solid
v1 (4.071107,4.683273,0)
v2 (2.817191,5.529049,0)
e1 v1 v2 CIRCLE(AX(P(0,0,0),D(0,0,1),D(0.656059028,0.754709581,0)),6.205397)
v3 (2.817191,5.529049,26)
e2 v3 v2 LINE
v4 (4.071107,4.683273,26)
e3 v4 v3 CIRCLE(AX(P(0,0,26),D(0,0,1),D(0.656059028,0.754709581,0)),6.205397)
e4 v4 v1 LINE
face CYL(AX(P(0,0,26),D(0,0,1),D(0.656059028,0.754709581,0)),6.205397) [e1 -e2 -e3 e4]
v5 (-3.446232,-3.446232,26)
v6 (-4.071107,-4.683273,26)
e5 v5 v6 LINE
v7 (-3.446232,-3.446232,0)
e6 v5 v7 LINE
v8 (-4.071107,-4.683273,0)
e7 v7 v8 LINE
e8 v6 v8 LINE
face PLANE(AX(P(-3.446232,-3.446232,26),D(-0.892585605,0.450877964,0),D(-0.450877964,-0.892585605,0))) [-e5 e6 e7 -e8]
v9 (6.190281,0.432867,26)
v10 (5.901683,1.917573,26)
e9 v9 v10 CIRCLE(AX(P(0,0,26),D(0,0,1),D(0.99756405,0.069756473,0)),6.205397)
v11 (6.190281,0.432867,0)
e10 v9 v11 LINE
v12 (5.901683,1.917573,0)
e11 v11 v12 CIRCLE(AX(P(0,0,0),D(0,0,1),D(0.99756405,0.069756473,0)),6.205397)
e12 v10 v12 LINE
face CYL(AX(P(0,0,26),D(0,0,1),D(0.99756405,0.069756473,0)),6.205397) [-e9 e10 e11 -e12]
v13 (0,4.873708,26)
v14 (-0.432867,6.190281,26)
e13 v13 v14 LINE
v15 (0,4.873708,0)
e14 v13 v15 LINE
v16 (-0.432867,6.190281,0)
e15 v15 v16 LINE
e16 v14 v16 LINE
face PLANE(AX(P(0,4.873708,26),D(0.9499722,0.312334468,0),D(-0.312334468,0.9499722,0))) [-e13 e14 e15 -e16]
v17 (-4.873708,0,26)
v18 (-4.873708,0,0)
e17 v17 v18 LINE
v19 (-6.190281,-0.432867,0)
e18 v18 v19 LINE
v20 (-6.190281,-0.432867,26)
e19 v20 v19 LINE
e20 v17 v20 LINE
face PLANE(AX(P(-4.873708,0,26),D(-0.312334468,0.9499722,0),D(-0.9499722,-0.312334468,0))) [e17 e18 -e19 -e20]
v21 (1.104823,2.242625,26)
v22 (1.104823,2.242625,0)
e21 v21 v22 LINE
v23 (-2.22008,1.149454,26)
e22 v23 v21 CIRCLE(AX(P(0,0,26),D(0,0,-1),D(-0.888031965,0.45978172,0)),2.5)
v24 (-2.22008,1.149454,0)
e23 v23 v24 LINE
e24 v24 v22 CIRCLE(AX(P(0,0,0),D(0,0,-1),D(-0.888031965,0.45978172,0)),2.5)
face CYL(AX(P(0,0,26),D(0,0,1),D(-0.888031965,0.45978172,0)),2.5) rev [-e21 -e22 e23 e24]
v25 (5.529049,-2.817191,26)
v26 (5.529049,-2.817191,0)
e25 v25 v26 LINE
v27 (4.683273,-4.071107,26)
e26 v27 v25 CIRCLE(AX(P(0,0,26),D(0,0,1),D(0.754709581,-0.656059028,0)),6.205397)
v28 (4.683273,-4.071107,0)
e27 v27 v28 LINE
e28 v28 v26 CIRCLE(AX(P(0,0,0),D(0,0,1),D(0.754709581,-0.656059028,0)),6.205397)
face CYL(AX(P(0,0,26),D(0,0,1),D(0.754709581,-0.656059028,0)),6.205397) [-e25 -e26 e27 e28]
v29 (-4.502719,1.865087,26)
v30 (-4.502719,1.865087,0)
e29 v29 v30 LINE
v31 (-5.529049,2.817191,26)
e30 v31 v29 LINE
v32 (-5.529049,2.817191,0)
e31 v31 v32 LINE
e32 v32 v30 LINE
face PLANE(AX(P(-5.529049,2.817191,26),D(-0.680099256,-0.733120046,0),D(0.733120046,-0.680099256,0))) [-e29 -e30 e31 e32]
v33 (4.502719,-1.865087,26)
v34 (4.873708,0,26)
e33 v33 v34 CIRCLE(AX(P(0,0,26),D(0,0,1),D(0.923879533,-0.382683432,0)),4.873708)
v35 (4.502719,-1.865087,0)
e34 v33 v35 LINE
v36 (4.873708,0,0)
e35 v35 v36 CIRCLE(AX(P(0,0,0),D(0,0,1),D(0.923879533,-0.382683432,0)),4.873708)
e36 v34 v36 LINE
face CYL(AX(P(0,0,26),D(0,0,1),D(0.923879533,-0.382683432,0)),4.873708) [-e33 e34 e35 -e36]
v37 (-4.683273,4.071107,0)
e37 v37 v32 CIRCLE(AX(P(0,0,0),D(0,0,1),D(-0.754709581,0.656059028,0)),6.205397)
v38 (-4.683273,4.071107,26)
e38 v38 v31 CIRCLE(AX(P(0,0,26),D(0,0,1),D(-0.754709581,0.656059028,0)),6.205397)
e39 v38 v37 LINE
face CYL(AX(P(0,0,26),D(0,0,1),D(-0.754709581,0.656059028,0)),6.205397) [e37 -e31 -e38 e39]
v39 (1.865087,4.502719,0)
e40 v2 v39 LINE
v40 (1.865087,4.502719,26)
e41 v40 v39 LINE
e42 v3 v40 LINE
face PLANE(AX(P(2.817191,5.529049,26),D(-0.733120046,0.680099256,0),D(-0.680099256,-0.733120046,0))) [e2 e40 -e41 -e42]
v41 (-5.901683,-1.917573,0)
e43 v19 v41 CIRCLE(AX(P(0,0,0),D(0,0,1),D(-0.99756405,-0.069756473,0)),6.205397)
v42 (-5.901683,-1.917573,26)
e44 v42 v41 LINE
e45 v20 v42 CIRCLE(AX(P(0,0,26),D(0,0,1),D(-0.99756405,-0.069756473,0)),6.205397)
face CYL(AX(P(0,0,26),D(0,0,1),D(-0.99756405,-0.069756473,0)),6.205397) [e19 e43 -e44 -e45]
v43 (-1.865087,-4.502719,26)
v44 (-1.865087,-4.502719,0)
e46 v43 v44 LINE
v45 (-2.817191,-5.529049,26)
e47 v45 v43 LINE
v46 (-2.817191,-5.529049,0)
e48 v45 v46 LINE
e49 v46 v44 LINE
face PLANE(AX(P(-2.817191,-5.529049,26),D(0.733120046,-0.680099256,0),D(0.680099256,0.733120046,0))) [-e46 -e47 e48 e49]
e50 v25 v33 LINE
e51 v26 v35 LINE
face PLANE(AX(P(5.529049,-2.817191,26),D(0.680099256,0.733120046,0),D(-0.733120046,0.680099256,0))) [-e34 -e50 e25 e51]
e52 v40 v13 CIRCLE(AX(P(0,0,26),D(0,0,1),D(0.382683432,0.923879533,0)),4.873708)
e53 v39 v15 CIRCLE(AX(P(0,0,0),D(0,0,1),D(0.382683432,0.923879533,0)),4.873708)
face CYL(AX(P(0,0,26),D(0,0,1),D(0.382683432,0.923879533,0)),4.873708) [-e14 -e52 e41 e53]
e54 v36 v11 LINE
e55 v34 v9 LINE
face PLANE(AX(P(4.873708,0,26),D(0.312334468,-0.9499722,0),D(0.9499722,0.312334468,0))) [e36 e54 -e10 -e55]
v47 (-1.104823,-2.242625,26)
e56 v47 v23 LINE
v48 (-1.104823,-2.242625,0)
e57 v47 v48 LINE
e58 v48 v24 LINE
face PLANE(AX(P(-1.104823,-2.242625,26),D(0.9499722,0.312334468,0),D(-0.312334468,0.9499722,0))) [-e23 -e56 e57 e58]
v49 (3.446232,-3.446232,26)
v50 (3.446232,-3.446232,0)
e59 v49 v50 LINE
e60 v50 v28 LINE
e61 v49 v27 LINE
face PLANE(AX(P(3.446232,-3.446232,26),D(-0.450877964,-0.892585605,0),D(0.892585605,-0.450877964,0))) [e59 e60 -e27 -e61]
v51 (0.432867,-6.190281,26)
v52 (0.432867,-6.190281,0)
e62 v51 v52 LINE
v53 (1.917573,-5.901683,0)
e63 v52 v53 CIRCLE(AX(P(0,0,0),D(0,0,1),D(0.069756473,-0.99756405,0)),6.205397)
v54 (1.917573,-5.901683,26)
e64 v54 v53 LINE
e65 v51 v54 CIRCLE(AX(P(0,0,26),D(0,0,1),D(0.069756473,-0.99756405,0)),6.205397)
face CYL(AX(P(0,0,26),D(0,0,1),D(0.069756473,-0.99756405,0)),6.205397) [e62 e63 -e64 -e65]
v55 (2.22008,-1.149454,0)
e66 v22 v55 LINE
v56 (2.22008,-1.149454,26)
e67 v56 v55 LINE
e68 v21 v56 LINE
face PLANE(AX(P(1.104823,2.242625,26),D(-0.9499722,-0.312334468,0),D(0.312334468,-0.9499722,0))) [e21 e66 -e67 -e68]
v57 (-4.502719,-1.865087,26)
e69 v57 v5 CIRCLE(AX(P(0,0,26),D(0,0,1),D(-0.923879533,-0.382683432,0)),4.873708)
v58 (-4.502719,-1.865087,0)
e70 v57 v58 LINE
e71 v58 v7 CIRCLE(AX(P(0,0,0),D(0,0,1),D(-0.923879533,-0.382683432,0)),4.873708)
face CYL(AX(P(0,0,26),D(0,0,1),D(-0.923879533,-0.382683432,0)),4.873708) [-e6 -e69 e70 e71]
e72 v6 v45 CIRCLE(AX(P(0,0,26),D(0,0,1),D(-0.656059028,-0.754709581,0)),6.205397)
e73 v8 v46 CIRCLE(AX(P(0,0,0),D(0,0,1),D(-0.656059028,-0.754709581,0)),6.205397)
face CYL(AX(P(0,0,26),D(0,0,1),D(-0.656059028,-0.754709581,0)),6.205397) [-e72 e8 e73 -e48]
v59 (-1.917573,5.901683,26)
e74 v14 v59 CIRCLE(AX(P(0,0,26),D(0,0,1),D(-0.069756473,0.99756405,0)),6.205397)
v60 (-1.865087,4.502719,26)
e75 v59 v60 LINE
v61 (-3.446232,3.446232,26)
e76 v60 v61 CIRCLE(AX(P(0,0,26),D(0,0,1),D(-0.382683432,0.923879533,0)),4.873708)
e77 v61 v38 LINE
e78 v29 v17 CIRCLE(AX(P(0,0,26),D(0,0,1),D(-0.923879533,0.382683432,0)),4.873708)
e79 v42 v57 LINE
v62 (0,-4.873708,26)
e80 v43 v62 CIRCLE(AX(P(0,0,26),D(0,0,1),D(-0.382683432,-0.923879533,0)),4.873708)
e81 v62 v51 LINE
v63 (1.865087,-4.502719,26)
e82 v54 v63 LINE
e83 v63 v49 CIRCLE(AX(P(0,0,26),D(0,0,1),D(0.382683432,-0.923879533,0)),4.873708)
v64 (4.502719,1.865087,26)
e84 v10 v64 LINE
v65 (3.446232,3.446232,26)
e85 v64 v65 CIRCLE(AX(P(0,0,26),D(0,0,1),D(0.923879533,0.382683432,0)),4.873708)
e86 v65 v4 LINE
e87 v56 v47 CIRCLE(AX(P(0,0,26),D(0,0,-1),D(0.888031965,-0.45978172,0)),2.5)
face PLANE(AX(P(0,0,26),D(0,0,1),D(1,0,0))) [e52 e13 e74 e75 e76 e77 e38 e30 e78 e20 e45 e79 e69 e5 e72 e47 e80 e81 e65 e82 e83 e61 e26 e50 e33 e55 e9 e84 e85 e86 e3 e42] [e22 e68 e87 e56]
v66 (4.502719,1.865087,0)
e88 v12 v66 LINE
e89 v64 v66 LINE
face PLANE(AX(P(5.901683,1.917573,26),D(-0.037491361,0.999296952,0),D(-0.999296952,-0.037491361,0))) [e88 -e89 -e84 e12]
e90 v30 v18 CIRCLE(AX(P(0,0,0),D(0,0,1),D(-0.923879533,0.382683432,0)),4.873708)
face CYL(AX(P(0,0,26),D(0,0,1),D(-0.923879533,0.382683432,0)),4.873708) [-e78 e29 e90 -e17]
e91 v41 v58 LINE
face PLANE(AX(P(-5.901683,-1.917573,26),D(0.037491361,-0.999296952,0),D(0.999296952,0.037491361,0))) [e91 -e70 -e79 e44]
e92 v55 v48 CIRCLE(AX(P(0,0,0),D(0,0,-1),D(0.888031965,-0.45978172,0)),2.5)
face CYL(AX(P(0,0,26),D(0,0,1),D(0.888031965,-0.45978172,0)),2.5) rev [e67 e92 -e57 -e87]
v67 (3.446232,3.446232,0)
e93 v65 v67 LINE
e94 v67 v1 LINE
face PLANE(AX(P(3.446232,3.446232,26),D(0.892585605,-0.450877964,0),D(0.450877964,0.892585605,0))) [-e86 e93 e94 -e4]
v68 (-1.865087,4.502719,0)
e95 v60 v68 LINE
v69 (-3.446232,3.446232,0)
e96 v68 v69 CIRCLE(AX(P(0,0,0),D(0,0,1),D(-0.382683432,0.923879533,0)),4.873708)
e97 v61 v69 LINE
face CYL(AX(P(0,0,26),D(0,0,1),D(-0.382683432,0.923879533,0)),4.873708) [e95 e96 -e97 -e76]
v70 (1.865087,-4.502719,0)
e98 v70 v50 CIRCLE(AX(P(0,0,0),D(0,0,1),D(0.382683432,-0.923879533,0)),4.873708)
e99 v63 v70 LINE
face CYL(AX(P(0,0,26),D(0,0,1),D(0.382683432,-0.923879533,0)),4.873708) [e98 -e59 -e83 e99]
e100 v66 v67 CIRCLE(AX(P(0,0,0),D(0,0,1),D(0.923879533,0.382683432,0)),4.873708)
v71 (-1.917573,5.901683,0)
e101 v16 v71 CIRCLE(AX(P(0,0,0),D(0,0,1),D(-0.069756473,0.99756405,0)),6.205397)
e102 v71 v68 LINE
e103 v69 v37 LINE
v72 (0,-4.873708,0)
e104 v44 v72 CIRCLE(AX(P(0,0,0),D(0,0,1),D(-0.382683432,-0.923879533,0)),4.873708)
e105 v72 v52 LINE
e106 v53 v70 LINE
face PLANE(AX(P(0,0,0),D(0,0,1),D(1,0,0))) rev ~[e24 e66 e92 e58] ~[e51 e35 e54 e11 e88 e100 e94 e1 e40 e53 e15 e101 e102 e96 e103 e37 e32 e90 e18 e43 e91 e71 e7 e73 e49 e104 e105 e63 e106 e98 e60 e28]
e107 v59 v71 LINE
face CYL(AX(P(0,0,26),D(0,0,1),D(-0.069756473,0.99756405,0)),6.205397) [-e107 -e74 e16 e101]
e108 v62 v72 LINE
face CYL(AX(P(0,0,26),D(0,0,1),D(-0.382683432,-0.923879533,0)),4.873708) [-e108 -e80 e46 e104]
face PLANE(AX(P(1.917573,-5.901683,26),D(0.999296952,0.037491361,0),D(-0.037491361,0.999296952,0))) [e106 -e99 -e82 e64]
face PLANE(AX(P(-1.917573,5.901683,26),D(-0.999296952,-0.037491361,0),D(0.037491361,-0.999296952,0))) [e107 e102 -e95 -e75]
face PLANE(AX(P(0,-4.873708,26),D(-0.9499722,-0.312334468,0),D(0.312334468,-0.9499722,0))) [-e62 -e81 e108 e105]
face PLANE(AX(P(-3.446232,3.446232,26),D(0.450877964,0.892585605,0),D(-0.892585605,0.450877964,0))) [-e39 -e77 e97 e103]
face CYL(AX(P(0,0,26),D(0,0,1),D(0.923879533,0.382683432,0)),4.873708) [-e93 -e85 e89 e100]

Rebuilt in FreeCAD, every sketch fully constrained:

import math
import FreeCAD as App
import Part
import Sketcher

V = App.Vector

doc = App.newDocument("Part")
params = doc.addObject("Spreadsheet::Sheet", "Params")
for row, (alias, value) in enumerate([
    ("sketch1_radius", "2.5 mm"),
    ("pad1_length", "26 mm"),
], start=1):
    params.set(f"A{row}", alias)
    params.set(f"B{row}", "=" + value)
    params.setAlias(f"B{row}", alias)

body = doc.addObject("PartDesign::Body", "Body")

sketch1 = body.newObject("Sketcher::SketchObject", "Sketch")
sketch1.AttachmentSupport = (doc.getObject("XY_Plane"), [""])
sketch1.MapMode = "FlatFace"
sketch1.AttachmentOffset = App.Placement(V(0, 0, 26), App.Rotation())
sketch1.addGeometry([
    Part.LineSegment(V(4.9, 0, 0), V(6.2, 0.4, 0)),
    Part.ArcOfCircle(Part.Circle(V(0, 0, 0), V(0, 0, 1), 6.2), math.radians(4), math.radians(18)),
    Part.LineSegment(V(5.9, 1.9, 0), V(4.5, 1.9, 0)),
    Part.ArcOfCircle(Part.Circle(V(0, 0, 0), V(0, 0, 1), 4.9), math.radians(22), math.radians(45)),
    Part.LineSegment(V(3.4, 3.4, 0), V(4.1, 4.7, 0)),
    Part.ArcOfCircle(Part.Circle(V(0, 0, 0), V(0, 0, 1), 6.2), math.radians(49), math.radians(63)),
    Part.LineSegment(V(2.8, 5.5, 0), V(1.9, 4.5, 0)),
    Part.ArcOfCircle(Part.Circle(V(0, 0, 0), V(0, 0, 1), 4.9), math.radians(68), math.radians(90)),
    Part.LineSegment(V(0, 4.9, 0), V(-0.4, 6.2, 0)),
    Part.ArcOfCircle(Part.Circle(V(0, 0, 0), V(0, 0, 1), 6.2), math.radians(94), math.radians(108)),
    Part.LineSegment(V(-1.9, 5.9, 0), V(-1.9, 4.5, 0)),
    Part.ArcOfCircle(Part.Circle(V(0, 0, 0), V(0, 0, 1), 4.9), math.radians(112), math.radians(135)),
    Part.LineSegment(V(-3.4, 3.4, 0), V(-4.7, 4.1, 0)),
    Part.ArcOfCircle(Part.Circle(V(0, 0, 0), V(0, 0, 1), 6.2), math.radians(139), math.radians(153)),
    Part.LineSegment(V(-5.5, 2.8, 0), V(-4.5, 1.9, 0)),
    Part.ArcOfCircle(Part.Circle(V(0, 0, 0), V(0, 0, 1), 4.9), math.radians(158), math.radians(180)),
    Part.LineSegment(V(-4.9, 0, 0), V(-6.2, -0.4, 0)),
    Part.ArcOfCircle(Part.Circle(V(0, 0, 0), V(0, 0, 1), 6.2), math.radians(-176), math.radians(-162)),
    Part.LineSegment(V(-5.9, -1.9, 0), V(-4.5, -1.9, 0)),
    Part.ArcOfCircle(Part.Circle(V(0, 0, 0), V(0, 0, 1), 4.9), math.radians(-158), math.radians(-135)),
    Part.LineSegment(V(-3.4, -3.4, 0), V(-4.1, -4.7, 0)),
    Part.ArcOfCircle(Part.Circle(V(0, 0, 0), V(0, 0, 1), 6.2), math.radians(-131), math.radians(-117)),
    Part.LineSegment(V(-2.8, -5.5, 0), V(-1.9, -4.5, 0)),
    Part.ArcOfCircle(Part.Circle(V(0, 0, 0), V(0, 0, 1), 4.9), math.radians(-112), math.radians(-90)),
    Part.LineSegment(V(0, -4.9, 0), V(0.4, -6.2, 0)),
    Part.ArcOfCircle(Part.Circle(V(0, 0, 0), V(0, 0, 1), 6.2), math.radians(-86), math.radians(-72)),
    Part.LineSegment(V(1.9, -5.9, 0), V(1.9, -4.5, 0)),
    Part.ArcOfCircle(Part.Circle(V(0, 0, 0), V(0, 0, 1), 4.9), math.radians(-68), math.radians(-45)),
    Part.LineSegment(V(3.4, -3.4, 0), V(4.7, -4.1, 0)),
    Part.ArcOfCircle(Part.Circle(V(0, 0, 0), V(0, 0, 1), 6.2), math.radians(-41), math.radians(-27)),
    Part.LineSegment(V(5.5, -2.8, 0), V(4.5, -1.9, 0)),
    Part.ArcOfCircle(Part.Circle(V(0, 0, 0), V(0, 0, 1), 4.9), math.radians(-22), math.radians(0)),
    Part.ArcOfCircle(Part.Circle(V(0, 0, 0), V(0, 0, 1), 2.5), math.radians(64), math.radians(153)),
    Part.LineSegment(V(1.1, 2.2, 0), V(2.2, -1.1, 0)),
    Part.ArcOfCircle(Part.Circle(V(0, 0, 0), V(0, 0, 1), 2.5), math.radians(-116), math.radians(-27)),
    Part.LineSegment(V(-1.1, -2.2, 0), V(-2.2, 1.1, 0)),
], False)
sketch1.addConstraint([
    Sketcher.Constraint("Coincident", 0, 2, 1, 1),
    Sketcher.Constraint("Coincident", 1, 2, 2, 1),
    Sketcher.Constraint("Coincident", 2, 2, 3, 1),
    Sketcher.Constraint("Coincident", 3, 2, 4, 1),
    Sketcher.Constraint("Coincident", 4, 2, 5, 1),
    Sketcher.Constraint("Coincident", 5, 2, 6, 1),
    Sketcher.Constraint("Coincident", 6, 2, 7, 1),
    Sketcher.Constraint("Coincident", 7, 2, 8, 1),
    Sketcher.Constraint("Coincident", 8, 2, 9, 1),
    Sketcher.Constraint("Coincident", 9, 2, 10, 1),
    Sketcher.Constraint("Coincident", 10, 2, 11, 1),
    Sketcher.Constraint("Coincident", 11, 2, 12, 1),
    Sketcher.Constraint("Coincident", 12, 2, 13, 1),
    Sketcher.Constraint("Coincident", 13, 2, 14, 1),
    Sketcher.Constraint("Coincident", 14, 2, 15, 1),
    Sketcher.Constraint("Coincident", 15, 2, 16, 1),
    Sketcher.Constraint("Coincident", 16, 2, 17, 1),
    Sketcher.Constraint("Coincident", 17, 2, 18, 1),
    Sketcher.Constraint("Coincident", 18, 2, 19, 1),
    Sketcher.Constraint("Coincident", 19, 2, 20, 1),
    Sketcher.Constraint("Coincident", 20, 2, 21, 1),
    Sketcher.Constraint("Coincident", 21, 2, 22, 1),
    Sketcher.Constraint("Coincident", 22, 2, 23, 1),
    Sketcher.Constraint("Coincident", 23, 2, 24, 1),
    Sketcher.Constraint("Coincident", 24, 2, 25, 1),
    Sketcher.Constraint("Coincident", 25, 2, 26, 1),
    Sketcher.Constraint("Coincident", 26, 2, 27, 1),
    Sketcher.Constraint("Coincident", 27, 2, 28, 1),
    Sketcher.Constraint("Coincident", 28, 2, 29, 1),
    Sketcher.Constraint("Coincident", 29, 2, 30, 1),
    Sketcher.Constraint("Coincident", 30, 2, 31, 1),
    Sketcher.Constraint("Coincident", 31, 2, 0, 1),
    Sketcher.Constraint("Coincident", 32, 1, 33, 1),
    Sketcher.Constraint("Coincident", 33, 2, 34, 2),
    Sketcher.Constraint("Coincident", 34, 1, 35, 1),
    Sketcher.Constraint("Coincident", 35, 2, 32, 2),
    Sketcher.Constraint("Coincident", 1, 3, -1, 1),
    Sketcher.Constraint("Coincident", 3, 3, -1, 1),
    Sketcher.Constraint("Coincident", 5, 3, -1, 1),
    Sketcher.Constraint("Coincident", 7, 3, -1, 1),
    Sketcher.Constraint("Coincident", 9, 3, -1, 1),
    Sketcher.Constraint("Coincident", 11, 3, -1, 1),
    Sketcher.Constraint("Coincident", 13, 3, -1, 1),
    Sketcher.Constraint("Coincident", 15, 3, -1, 1),
    Sketcher.Constraint("Coincident", 17, 3, -1, 1),
    Sketcher.Constraint("Coincident", 19, 3, -1, 1),
    Sketcher.Constraint("Coincident", 21, 3, -1, 1),
    Sketcher.Constraint("Coincident", 23, 3, -1, 1),
    Sketcher.Constraint("Coincident", 25, 3, -1, 1),
    Sketcher.Constraint("Coincident", 27, 3, -1, 1),
    Sketcher.Constraint("Coincident", 29, 3, -1, 1),
    Sketcher.Constraint("Coincident", 31, 3, -1, 1),
    Sketcher.Constraint("Coincident", 32, 3, -1, 1),
    Sketcher.Constraint("Coincident", 34, 3, -1, 1),
    Sketcher.Constraint("Equal", 1, 5),
    Sketcher.Constraint("Equal", 3, 7),
    Sketcher.Constraint("Equal", 5, 9),
    Sketcher.Constraint("Equal", 7, 11),
    Sketcher.Constraint("Equal", 9, 13),
    Sketcher.Constraint("Equal", 11, 15),
    Sketcher.Constraint("Equal", 13, 17),
    Sketcher.Constraint("Equal", 15, 19),
    Sketcher.Constraint("Equal", 17, 21),
    Sketcher.Constraint("Equal", 19, 23),
    Sketcher.Constraint("Equal", 21, 25),
    Sketcher.Constraint("Equal", 23, 27),
    Sketcher.Constraint("Equal", 25, 29),
    Sketcher.Constraint("Equal", 27, 31),
    Sketcher.Constraint("Equal", 32, 34),
    Sketcher.Constraint("PointOnObject", 7, 2, -2),
    Sketcher.Constraint("PointOnObject", 15, 2, -1),
    Sketcher.Constraint("PointOnObject", 23, 2, -2),
    Sketcher.Constraint("PointOnObject", 31, 2, -1),
    Sketcher.Constraint("Perpendicular", 0, 8),
    Sketcher.Constraint("Perpendicular", 2, 10),
    Sketcher.Constraint("Perpendicular", 4, 12),
    Sketcher.Constraint("Perpendicular", 6, 14),
    Sketcher.Constraint("Perpendicular", 8, 16),
    Sketcher.Constraint("Perpendicular", 10, 18),
    Sketcher.Constraint("Perpendicular", 12, 20),
    Sketcher.Constraint("Perpendicular", 14, 22),
    Sketcher.Constraint("Perpendicular", 16, 24),
    Sketcher.Constraint("Perpendicular", 18, 26),
    Sketcher.Constraint("Perpendicular", 20, 28),
    Sketcher.Constraint("Perpendicular", 22, 30),
    Sketcher.Constraint("Parallel", 24, 33),
    Sketcher.Constraint("Parallel", 33, 35),
    Sketcher.Constraint("Horizontal", 6, 2, 10, 2),
    Sketcher.Constraint("Horizontal", 3, 2, 11, 2),
    Sketcher.Constraint("Horizontal", 2, 2, 14, 2),
    Sketcher.Constraint("Horizontal", 22, 2, 26, 2),
    Sketcher.Constraint("Horizontal", 19, 2, 27, 2),
    Sketcher.Constraint("Horizontal", 18, 2, 30, 2),
    Sketcher.Constraint("Vertical", 14, 2, 18, 2),
    Sketcher.Constraint("Vertical", 11, 2, 19, 2),
    Sketcher.Constraint("Vertical", 10, 2, 22, 2),
    Sketcher.Constraint("Equal", 0, 4),
    Sketcher.Constraint("Equal", 2, 6),
    Sketcher.Constraint("Equal", 6, 10),
    Sketcher.Constraint("Equal", 8, 12),
    Sketcher.Constraint("Equal", 33, 35),
    Sketcher.Constraint("Radius", 32, 2.5),
    Sketcher.Constraint("Radius", 1, 6.205397),
    Sketcher.Constraint("Radius", 3, 4.873708),
    Sketcher.Constraint("DistanceY", 1, 2, 4, 2, 2.765699),
    Sketcher.Constraint("DistanceX", 8, 2, 3, 2, 3.879098),
    Sketcher.Constraint("Distance", 2, 1.399949),
    Sketcher.Constraint("DistanceX", -1, 1, 33, 2, 2.22008),
])
sketch1.setExpression("Constraints[101]", "Params.sketch1_radius")
pad1 = body.newObject("PartDesign::Pad", "Pad")
pad1.Profile = sketch1
pad1.setExpression("Length", "Params.pad1_length")
pad1.Reversed = True

doc.recompute()
